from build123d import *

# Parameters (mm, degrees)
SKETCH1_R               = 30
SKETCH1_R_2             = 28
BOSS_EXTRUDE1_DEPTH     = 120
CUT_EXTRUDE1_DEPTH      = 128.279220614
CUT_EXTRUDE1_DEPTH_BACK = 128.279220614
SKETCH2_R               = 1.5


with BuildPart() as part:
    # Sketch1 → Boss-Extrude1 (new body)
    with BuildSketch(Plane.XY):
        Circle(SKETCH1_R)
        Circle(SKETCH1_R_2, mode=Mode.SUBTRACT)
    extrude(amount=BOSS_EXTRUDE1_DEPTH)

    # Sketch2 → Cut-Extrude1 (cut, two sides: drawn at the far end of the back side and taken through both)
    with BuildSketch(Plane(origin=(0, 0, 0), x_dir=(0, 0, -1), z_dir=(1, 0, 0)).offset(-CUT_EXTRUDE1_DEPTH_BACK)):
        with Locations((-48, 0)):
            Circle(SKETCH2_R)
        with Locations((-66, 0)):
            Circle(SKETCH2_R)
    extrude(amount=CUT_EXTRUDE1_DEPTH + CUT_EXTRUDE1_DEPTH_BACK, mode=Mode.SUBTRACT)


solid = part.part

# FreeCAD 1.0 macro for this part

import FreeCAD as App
import Part
import Sketcher

V = App.Vector

doc = App.newDocument("Part")
body = doc.addObject("PartDesign::Body", "Body")

# Sketch on XY plane
sketch1 = body.newObject("Sketcher::SketchObject", "Sketch")
sketch1.AttachmentSupport = (doc.getObject("XY_Plane"), [""])
sketch1.MapMode = "FlatFace"
sketch1.addGeometry(Part.Circle(V(0, 0, 0), V(0, 0, 1), 30), False)
sketch1.addGeometry(Part.Circle(V(0, 0, 0), V(0, 0, 1), 28), False)
sketch1.addConstraint(Sketcher.Constraint("Coincident", 0, 3, -1, 1))
sketch1.addConstraint(Sketcher.Constraint("Coincident", 1, 3, -1, 1))
sketch1.addConstraint(Sketcher.Constraint("Diameter", 0, 60.0))
sketch1.addConstraint(Sketcher.Constraint("Diameter", 1, 56.0))
pad1 = body.newObject("PartDesign::Pad", "Pad")
pad1.Profile = sketch1
pad1.Length = 120

# Sketch on YZ plane
sketch2 = body.newObject("Sketcher::SketchObject", "Sketch001")
sketch2.AttachmentSupport = (doc.getObject("YZ_Plane"), [""])
sketch2.MapMode = "FlatFace"
sketch2.addGeometry(Part.Circle(V(0, 48, 0), V(0, 0, 1), 1.5), False)
sketch2.addGeometry(Part.Circle(V(0, 66, 0), V(0, 0, 1), 1.5), False)
sketch2.addConstraint(Sketcher.Constraint("Equal", 0, 1))
sketch2.addConstraint(Sketcher.Constraint("PointOnObject", 0, 3, -2))
sketch2.addConstraint(Sketcher.Constraint("PointOnObject", 1, 3, -2))
sketch2.addConstraint(Sketcher.Constraint("Diameter", 0, 3.0))
sketch2.addConstraint(Sketcher.Constraint("DistanceY", -1, 1, 0, 3, 48.0))
sketch2.addConstraint(Sketcher.Constraint("DistanceY", -1, 1, 1, 3, 66.0))
pocket1 = body.newObject("PartDesign::Pocket", "Pocket")
pocket1.Profile = sketch2
pocket1.Type = "ThroughAll"
pocket1.Midplane = True

doc.recompute()
